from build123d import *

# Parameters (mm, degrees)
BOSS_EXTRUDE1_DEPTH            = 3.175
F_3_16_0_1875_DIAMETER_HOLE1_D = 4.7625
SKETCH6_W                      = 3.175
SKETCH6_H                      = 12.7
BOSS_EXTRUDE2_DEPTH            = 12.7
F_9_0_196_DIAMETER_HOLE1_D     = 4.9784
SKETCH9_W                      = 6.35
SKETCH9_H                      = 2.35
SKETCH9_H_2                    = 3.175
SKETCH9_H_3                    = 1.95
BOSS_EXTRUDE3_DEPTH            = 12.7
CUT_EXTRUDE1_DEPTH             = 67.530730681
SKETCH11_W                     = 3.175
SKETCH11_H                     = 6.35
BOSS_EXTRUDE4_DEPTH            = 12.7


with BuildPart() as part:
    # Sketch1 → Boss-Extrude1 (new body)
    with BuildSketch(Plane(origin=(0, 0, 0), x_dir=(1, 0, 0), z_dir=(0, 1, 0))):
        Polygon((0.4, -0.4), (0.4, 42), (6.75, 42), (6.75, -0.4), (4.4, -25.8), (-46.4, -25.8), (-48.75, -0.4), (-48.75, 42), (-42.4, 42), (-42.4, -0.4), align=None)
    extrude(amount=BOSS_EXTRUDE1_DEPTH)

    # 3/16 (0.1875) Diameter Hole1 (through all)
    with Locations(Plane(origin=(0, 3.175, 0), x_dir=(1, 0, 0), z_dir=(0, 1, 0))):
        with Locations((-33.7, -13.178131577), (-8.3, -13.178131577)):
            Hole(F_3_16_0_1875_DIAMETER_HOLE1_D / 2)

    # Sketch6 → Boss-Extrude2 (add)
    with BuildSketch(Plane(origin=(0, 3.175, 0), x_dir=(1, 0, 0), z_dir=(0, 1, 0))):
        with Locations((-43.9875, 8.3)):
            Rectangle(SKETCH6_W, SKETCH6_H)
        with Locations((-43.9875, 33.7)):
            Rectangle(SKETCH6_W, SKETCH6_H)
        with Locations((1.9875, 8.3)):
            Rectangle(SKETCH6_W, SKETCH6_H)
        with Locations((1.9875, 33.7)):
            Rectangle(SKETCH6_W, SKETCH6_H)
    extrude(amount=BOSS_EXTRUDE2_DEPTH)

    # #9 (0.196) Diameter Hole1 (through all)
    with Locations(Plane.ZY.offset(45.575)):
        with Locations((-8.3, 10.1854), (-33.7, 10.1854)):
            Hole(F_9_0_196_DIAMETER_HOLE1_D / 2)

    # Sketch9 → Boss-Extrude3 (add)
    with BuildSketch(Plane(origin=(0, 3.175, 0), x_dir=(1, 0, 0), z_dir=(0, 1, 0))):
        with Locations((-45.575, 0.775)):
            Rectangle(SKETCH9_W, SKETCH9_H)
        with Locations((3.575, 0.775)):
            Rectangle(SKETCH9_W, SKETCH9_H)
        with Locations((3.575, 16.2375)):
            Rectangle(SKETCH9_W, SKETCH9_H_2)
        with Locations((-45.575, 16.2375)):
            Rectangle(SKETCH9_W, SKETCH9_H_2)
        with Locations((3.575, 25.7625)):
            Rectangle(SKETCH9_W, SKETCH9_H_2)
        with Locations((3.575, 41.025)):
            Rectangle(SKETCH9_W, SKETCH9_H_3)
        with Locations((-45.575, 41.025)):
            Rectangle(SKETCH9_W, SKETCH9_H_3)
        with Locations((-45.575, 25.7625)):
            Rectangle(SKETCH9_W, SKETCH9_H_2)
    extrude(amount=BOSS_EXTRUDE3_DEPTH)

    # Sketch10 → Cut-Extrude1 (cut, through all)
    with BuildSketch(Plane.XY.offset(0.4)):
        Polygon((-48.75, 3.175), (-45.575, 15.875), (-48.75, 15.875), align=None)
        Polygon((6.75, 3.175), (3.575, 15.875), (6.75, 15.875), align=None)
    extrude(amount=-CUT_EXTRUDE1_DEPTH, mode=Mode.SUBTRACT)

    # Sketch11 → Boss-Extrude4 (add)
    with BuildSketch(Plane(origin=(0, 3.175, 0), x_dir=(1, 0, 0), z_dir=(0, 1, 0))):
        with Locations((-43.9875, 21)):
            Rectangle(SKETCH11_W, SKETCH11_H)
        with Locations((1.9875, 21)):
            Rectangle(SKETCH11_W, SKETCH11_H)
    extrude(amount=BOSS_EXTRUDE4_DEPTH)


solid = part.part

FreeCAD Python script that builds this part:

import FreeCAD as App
import Part
import Sketcher
from FreeCAD import Vector
Q = App.Units.Quantity

doc = App.newDocument("Part")
body = doc.addObject("PartDesign::Body", "Body")

sketch1 = body.newObject("Sketcher::SketchObject", "Sketch")
sketch1.AttachmentSupport = (doc.getObject("XZ_Plane"), [""])
sketch1.MapMode = "FlatFace"
sketch1.addGeometry([
    Part.LineSegment(Vector(0, -42, 0), Vector(0, 0, 0)),
    Part.LineSegment(Vector(0, 0, 0), Vector(-42, 0, 0)),
    Part.LineSegment(Vector(-42, 0, 0), Vector(-42, -42, 0)),
    Part.LineSegment(Vector(-42, -42, 0), Vector(-49, -42, 0)),
    Part.LineSegment(Vector(-49, -42, 0), Vector(-49, 0, 0)),
    Part.LineSegment(Vector(-49, 0, 0), Vector(-46, 26, 0)),
    Part.LineSegment(Vector(-46, 26, 0), Vector(4, 26, 0)),
    Part.LineSegment(Vector(4, 26, 0), Vector(7, 0, 0)),
    Part.LineSegment(Vector(7, 0, 0), Vector(7, -42, 0)),
    Part.LineSegment(Vector(7, -42, 0), Vector(0, -42, 0)),
], False)
sketch1.addConstraint([
    Sketcher.Constraint("Coincident", 0, 2, 1, 1),
    Sketcher.Constraint("Coincident", 1, 2, 2, 1),
    Sketcher.Constraint("Coincident", 2, 2, 3, 1),
    Sketcher.Constraint("Coincident", 3, 2, 4, 1),
    Sketcher.Constraint("Coincident", 4, 2, 5, 1),
    Sketcher.Constraint("Coincident", 5, 2, 6, 1),
    Sketcher.Constraint("Coincident", 6, 2, 7, 1),
    Sketcher.Constraint("Coincident", 7, 2, 8, 1),
    Sketcher.Constraint("Coincident", 8, 2, 9, 1),
    Sketcher.Constraint("Coincident", 9, 2, 0, 1),
    Sketcher.Constraint("Vertical", 0),
    Sketcher.Constraint("Horizontal", 1),
    Sketcher.Constraint("Vertical", 2),
    Sketcher.Constraint("Horizontal", 3),
    Sketcher.Constraint("Vertical", 4),
    Sketcher.Constraint("Horizontal", 6),
    Sketcher.Constraint("Vertical", 8),
    Sketcher.Constraint("Horizontal", 9),
    Sketcher.Constraint("Horizontal", 1, 2, 4, 2),
    Sketcher.Constraint("Horizontal", 4, 2, 7, 2),
    Sketcher.Constraint("Horizontal", 3, 2, 8, 2),
    Sketcher.Constraint("Equal", 3, 9),
    Sketcher.Constraint("Equal", 5, 7),
    Sketcher.Constraint("DistanceX", 6, 1, 6, 2, Q("2 in")),
    Sketcher.Constraint("DistanceY", 4, 2, 5, 2, Q("1 in")),
    Sketcher.Constraint("DistanceX", 3, 2, 3, 1, Q("0.25 in")),
    Sketcher.Constraint("DistanceX", 1, 2, 1, 1, Q("42.8 mm")),
    Sketcher.Constraint("DistanceY", 0, 1, 0, 2, Q("42.4 mm")),
    Sketcher.Constraint("DistanceX", -1, 1, 0, 2, Q("0.4 mm")),
    Sketcher.Constraint("DistanceY", -1, 1, 0, 2, Q("0.4 mm")),
])
pad1 = body.newObject("PartDesign::Pad", "Pad")
pad1.Profile = sketch1
pad1.Length = Q("0.125 in")
pad1.Reversed = True

sketch2 = body.newObject("Sketcher::SketchObject", "Sketch001")
sketch2.AttachmentSupport = (doc.getObject("XZ_Plane"), [""])
sketch2.MapMode = "FlatFace"
sketch2.AttachmentOffset = App.Placement(Vector(0, 0, -0.125 * 25.4), App.Rotation())
sketch2.addGeometry([
    Part.Circle(Vector(-33.7, 13.2, 0), Vector(0, 0, 1), 2.4),
    Part.Circle(Vector(-8.3, 13.2, 0), Vector(0, 0, 1), 2.4),
], False)
sketch2.addConstraint([
    Sketcher.Constraint("Equal", 0, 1),
    Sketcher.Constraint("Horizontal", 0, 3, 1, 3),
    Sketcher.Constraint("Diameter", 0, Q("0.1875 in")),
    Sketcher.Constraint("DistanceX", 0, 3, 1, 3, Q("1 in")),
    Sketcher.Constraint("DistanceX", 0, 3, -1, 1, Q("33.7 mm")),
    Sketcher.Constraint("DistanceY", -1, 1, 0, 3, Q("13.178132 mm")),
])
doc.recompute()
hole = body.newObject("PartDesign::Hole", "Hole")
hole.Profile = sketch2
hole.ThreadType = "None"
hole.Diameter = Q("0.1875 in")
hole.DepthType = "ThroughAll"
hole.Reversed = True

sketch3 = body.newObject("Sketcher::SketchObject", "Sketch002")
sketch3.AttachmentSupport = (doc.getObject("XZ_Plane"), [""])
sketch3.MapMode = "FlatFace"
sketch3.AttachmentOffset = App.Placement(Vector(0, 0, -0.125 * 25.4), App.Rotation())
sketch3.addGeometry([
    Part.LineSegment(Vector(-45.6, -14.7, 0), Vector(-45.6, -1.9, 0)),
    Part.LineSegment(Vector(-45.6, -1.9, 0), Vector(-42.4, -1.9, 0)),
    Part.LineSegment(Vector(-42.4, -1.9, 0), Vector(-42.4, -14.7, 0)),
    Part.LineSegment(Vector(-42.4, -14.7, 0), Vector(-45.6, -14.7, 0)),
    Part.LineSegment(Vector(-45.6, -40, 0), Vector(-45.6, -27.4, 0)),
    Part.LineSegment(Vector(-45.6, -27.4, 0), Vector(-42.4, -27.4, 0)),
    Part.LineSegment(Vector(-42.4, -27.4, 0), Vector(-42.4, -40, 0)),
    Part.LineSegment(Vector(-42.4, -40, 0), Vector(-45.6, -40, 0)),
    Part.LineSegment(Vector(0.4, -14.7, 0), Vector(0.4, -1.9, 0)),
    Part.LineSegment(Vector(0.4, -1.9, 0), Vector(3.6, -1.9, 0)),
    Part.LineSegment(Vector(3.6, -1.9, 0), Vector(3.6, -14.7, 0)),
    Part.LineSegment(Vector(3.6, -14.7, 0), Vector(0.4, -14.7, 0)),
    Part.LineSegment(Vector(0.4, -40, 0), Vector(0.4, -27.4, 0)),
    Part.LineSegment(Vector(0.4, -27.4, 0), Vector(3.6, -27.4, 0)),
    Part.LineSegment(Vector(3.6, -27.4, 0), Vector(3.6, -40, 0)),
    Part.LineSegment(Vector(3.6, -40, 0), Vector(0.4, -40, 0)),
], False)
sketch3.addConstraint([
    Sketcher.Constraint("Coincident", 0, 2, 1, 1),
    Sketcher.Constraint("Coincident", 1, 2, 2, 1),
    Sketcher.Constraint("Coincident", 2, 2, 3, 1),
    Sketcher.Constraint("Coincident", 3, 2, 0, 1),
    Sketcher.Constraint("Coincident", 4, 2, 5, 1),
    Sketcher.Constraint("Coincident", 5, 2, 6, 1),
    Sketcher.Constraint("Coincident", 6, 2, 7, 1),
    Sketcher.Constraint("Coincident", 7, 2, 4, 1),
    Sketcher.Constraint("Coincident", 8, 2, 9, 1),
    Sketcher.Constraint("Coincident", 9, 2, 10, 1),
    Sketcher.Constraint("Coincident", 10, 2, 11, 1),
    Sketcher.Constraint("Coincident", 11, 2, 8, 1),
    Sketcher.Constraint("Coincident", 12, 2, 13, 1),
    Sketcher.Constraint("Coincident", 13, 2, 14, 1),
    Sketcher.Constraint("Coincident", 14, 2, 15, 1),
    Sketcher.Constraint("Coincident", 15, 2, 12, 1),
    Sketcher.Constraint("Vertical", 0),
    Sketcher.Constraint("Horizontal", 1),
    Sketcher.Constraint("Vertical", 2),
    Sketcher.Constraint("Horizontal", 3),
    Sketcher.Constraint("Vertical", 4),
    Sketcher.Constraint("Horizontal", 5),
    Sketcher.Constraint("Vertical", 6),
    Sketcher.Constraint("Horizontal", 7),
    Sketcher.Constraint("Vertical", 8),
    Sketcher.Constraint("Horizontal", 9),
    Sketcher.Constraint("Vertical", 10),
    Sketcher.Constraint("Horizontal", 11),
    Sketcher.Constraint("Vertical", 12),
    Sketcher.Constraint("Horizontal", 13),
    Sketcher.Constraint("Vertical", 14),
    Sketcher.Constraint("Horizontal", 15),
    Sketcher.Constraint("Horizontal", 1, 2, 8, 2),
    Sketcher.Constraint("Horizontal", 3, 2, 10, 2),
    Sketcher.Constraint("Horizontal", 5, 2, 12, 2),
    Sketcher.Constraint("Horizontal", 7, 2, 14, 2),
    Sketcher.Constraint("Vertical", 3, 2, 4, 2),
    Sketcher.Constraint("Vertical", 2, 2, 5, 2),
    Sketcher.Constraint("Vertical", 11, 2, 12, 2),
    Sketcher.Constraint("Vertical", 10, 2, 13, 2),
    Sketcher.Constraint("Equal", 7, 9),
    Sketcher.Constraint("Equal", 2, 4),
    Sketcher.Constraint("DistanceY", 0, 1, 0, 2, Q("0.5 in")),
    Sketcher.Constraint("DistanceY", 4, 2, 0, 2, Q("1 in")),
    Sketcher.Constraint("DistanceX", 1, 1, 1, 2, Q("0.125 in")),
    Sketcher.Constraint("DistanceX", 0, 2, -1, 1, Q("45.575 mm")),
    Sketcher.Constraint("DistanceY", 0, 2, -1, 1, Q("1.95 mm")),
    Sketcher.Constraint("DistanceX", -1, 1, 8, 2, Q("0.4 mm")),
])
pad2 = body.newObject("PartDesign::Pad", "Pad001")
pad2.Profile = sketch3
pad2.Length = Q("0.5 in")
pad2.Reversed = True

sketch4 = body.newObject("Sketcher::SketchObject", "Sketch003")
sketch4.AttachmentSupport = (doc.getObject("YZ_Plane"), [""])
sketch4.MapMode = "FlatFace"
sketch4.AttachmentOffset = App.Placement(Vector(0, 0, -45.575), App.Rotation())
sketch4.addGeometry([
    Part.Circle(Vector(10.2, -8.3, 0), Vector(0, 0, 1), 2.5),
    Part.Circle(Vector(10.2, -33.7, 0), Vector(0, 0, 1), 2.5),
], False)
sketch4.addConstraint([
    Sketcher.Constraint("Equal", 0, 1),
    Sketcher.Constraint("Vertical", 0, 3, 1, 3),
    Sketcher.Constraint("Diameter", 0, Q("0.196 in")),
    Sketcher.Constraint("DistanceY", 1, 3, 0, 3, Q("1 in")),
    Sketcher.Constraint("DistanceX", -1, 1, 0, 3, Q("0.401 in")),
    Sketcher.Constraint("DistanceY", 0, 3, -1, 1, Q("8.3 mm")),
])
doc.recompute()
hole2 = body.newObject("PartDesign::Hole", "Hole001")
hole2.Profile = sketch4
hole2.ThreadType = "None"
hole2.Diameter = Q("0.196 in")
hole2.DepthType = "ThroughAll"
hole2.Reversed = True

sketch5 = body.newObject("Sketcher::SketchObject", "Sketch004")
sketch5.AttachmentSupport = (doc.getObject("XZ_Plane"), [""])
sketch5.MapMode = "FlatFace"
sketch5.AttachmentOffset = App.Placement(Vector(0, 0, -0.125 * 25.4), App.Rotation())
sketch5.addGeometry([
    Part.LineSegment(Vector(-48.8, -1.9, 0), Vector(-48.8, 0.4, 0)),
    Part.LineSegment(Vector(-48.8, 0.4, 0), Vector(-42.4, 0.4, 0)),
    Part.LineSegment(Vector(-42.4, 0.4, 0), Vector(-42.4, -1.9, 0)),
    Part.LineSegment(Vector(-42.4, -1.9, 0), Vector(-48.8, -1.9, 0)),
    Part.LineSegment(Vector(0.4, -1.9, 0), Vector(0.4, 0.4, 0)),
    Part.LineSegment(Vector(0.4, 0.4, 0), Vector(6.8, 0.4, 0)),
    Part.LineSegment(Vector(6.8, 0.4, 0), Vector(6.8, -1.9, 0)),
    Part.LineSegment(Vector(6.8, -1.9, 0), Vector(0.4, -1.9, 0)),
    Part.LineSegment(Vector(0.4, -17.8, 0), Vector(0.4, -14.7, 0)),
    Part.LineSegment(Vector(0.4, -14.7, 0), Vector(6.8, -14.7, 0)),
    Part.LineSegment(Vector(6.8, -14.7, 0), Vector(6.8, -17.8, 0)),
    Part.LineSegment(Vector(6.8, -17.8, 0), Vector(0.4, -17.8, 0)),
    Part.LineSegment(Vector(-48.8, -17.8, 0), Vector(-48.8, -14.7, 0)),
    Part.LineSegment(Vector(-48.8, -14.7, 0), Vector(-42.4, -14.7, 0)),
    Part.LineSegment(Vector(-42.4, -14.7, 0), Vector(-42.4, -17.8, 0)),
    Part.LineSegment(Vector(-42.4, -17.8, 0), Vector(-48.8, -17.8, 0)),
    Part.LineSegment(Vector(0.4, -27.4, 0), Vector(0.4, -24.2, 0)),
    Part.LineSegment(Vector(0.4, -24.2, 0), Vector(6.8, -24.2, 0)),
    Part.LineSegment(Vector(6.8, -24.2, 0), Vector(6.8, -27.4, 0)),
    Part.LineSegment(Vector(6.8, -27.4, 0), Vector(0.4, -27.4, 0)),
    Part.LineSegment(Vector(0.4, -42, 0), Vector(0.4, -40, 0)),
    Part.LineSegment(Vector(0.4, -40, 0), Vector(6.8, -40, 0)),
    Part.LineSegment(Vector(6.8, -40, 0), Vector(6.8, -42, 0)),
    Part.LineSegment(Vector(6.8, -42, 0), Vector(0.4, -42, 0)),
    Part.LineSegment(Vector(-48.8, -42, 0), Vector(-48.8, -40, 0)),
    Part.LineSegment(Vector(-48.8, -40, 0), Vector(-42.4, -40, 0)),
    Part.LineSegment(Vector(-42.4, -40, 0), Vector(-42.4, -42, 0)),
    Part.LineSegment(Vector(-42.4, -42, 0), Vector(-48.8, -42, 0)),
    Part.LineSegment(Vector(-48.8, -27.4, 0), Vector(-48.8, -24.2, 0)),
    Part.LineSegment(Vector(-48.8, -24.2, 0), Vector(-42.4, -24.2, 0)),
    Part.LineSegment(Vector(-42.4, -24.2, 0), Vector(-42.4, -27.4, 0)),
    Part.LineSegment(Vector(-42.4, -27.4, 0), Vector(-48.8, -27.4, 0)),
], False)
sketch5.addConstraint([
    Sketcher.Constraint("Coincident", 0, 2, 1, 1),
    Sketcher.Constraint("Coincident", 1, 2, 2, 1),
    Sketcher.Constraint("Coincident", 2, 2, 3, 1),
    Sketcher.Constraint("Coincident", 3, 2, 0, 1),
    Sketcher.Constraint("Coincident", 4, 2, 5, 1),
    Sketcher.Constraint("Coincident", 5, 2, 6, 1),
    Sketcher.Constraint("Coincident", 6, 2, 7, 1),
    Sketcher.Constraint("Coincident", 7, 2, 4, 1),
    Sketcher.Constraint("Coincident", 8, 2, 9, 1),
    Sketcher.Constraint("Coincident", 9, 2, 10, 1),
    Sketcher.Constraint("Coincident", 10, 2, 11, 1),
    Sketcher.Constraint("Coincident", 11, 2, 8, 1),
    Sketcher.Constraint("Coincident", 12, 2, 13, 1),
    Sketcher.Constraint("Coincident", 13, 2, 14, 1),
    Sketcher.Constraint("Coincident", 14, 2, 15, 1),
    Sketcher.Constraint("Coincident", 15, 2, 12, 1),
    Sketcher.Constraint("Coincident", 16, 2, 17, 1),
    Sketcher.Constraint("Coincident", 17, 2, 18, 1),
    Sketcher.Constraint("Coincident", 18, 2, 19, 1),
    Sketcher.Constraint("Coincident", 19, 2, 16, 1),
    Sketcher.Constraint("Coincident", 20, 2, 21, 1),
    Sketcher.Constraint("Coincident", 21, 2, 22, 1),
    Sketcher.Constraint("Coincident", 22, 2, 23, 1),
    Sketcher.Constraint("Coincident", 23, 2, 20, 1),
    Sketcher.Constraint("Coincident", 24, 2, 25, 1),
    Sketcher.Constraint("Coincident", 25, 2, 26, 1),
    Sketcher.Constraint("Coincident", 26, 2, 27, 1),
    Sketcher.Constraint("Coincident", 27, 2, 24, 1),
    Sketcher.Constraint("Coincident", 28, 2, 29, 1),
    Sketcher.Constraint("Coincident", 29, 2, 30, 1),
    Sketcher.Constraint("Coincident", 30, 2, 31, 1),
    Sketcher.Constraint("Coincident", 31, 2, 28, 1),
    Sketcher.Constraint("Vertical", 0),
    Sketcher.Constraint("Horizontal", 1),
    Sketcher.Constraint("Vertical", 2),
    Sketcher.Constraint("Horizontal", 3),
    Sketcher.Constraint("Vertical", 4),
    Sketcher.Constraint("Horizontal", 5),
    Sketcher.Constraint("Vertical", 6),
    Sketcher.Constraint("Horizontal", 7),
    Sketcher.Constraint("Vertical", 8),
    Sketcher.Constraint("Horizontal", 9),
    Sketcher.Constraint("Vertical", 10),
    Sketcher.Constraint("Horizontal", 11),
    Sketcher.Constraint("Vertical", 12),
    Sketcher.Constraint("Horizontal", 13),
    Sketcher.Constraint("Vertical", 14),
    Sketcher.Constraint("Horizontal", 15),
    Sketcher.Constraint("Vertical", 16),
    Sketcher.Constraint("Horizontal", 17),
    Sketcher.Constraint("Vertical", 18),
    Sketcher.Constraint("Horizontal", 19),
    Sketcher.Constraint("Vertical", 20),
    Sketcher.Constraint("Horizontal", 21),
    Sketcher.Constraint("Vertical", 22),
    Sketcher.Constraint("Horizontal", 23),
    Sketcher.Constraint("Vertical", 24),
    Sketcher.Constraint("Horizontal", 25),
    Sketcher.Constraint("Vertical", 26),
    Sketcher.Constraint("Horizontal", 27),
    Sketcher.Constraint("Vertical", 28),
    Sketcher.Constraint("Horizontal", 29),
    Sketcher.Constraint("Vertical", 30),
    Sketcher.Constraint("Horizontal", 31),
    Sketcher.Constraint("Horizontal", 1, 2, 4, 2),
    Sketcher.Constraint("Horizontal", 3, 2, 6, 2),
    Sketcher.Constraint("Horizontal", 9, 2, 12, 2),
    Sketcher.Constraint("Horizontal", 11, 2, 14, 2),
    Sketcher.Constraint("Horizontal", 21, 2, 24, 2),
    Sketcher.Constraint("Horizontal", 23, 2, 26, 2),
    Sketcher.Constraint("Horizontal", 17, 2, 28, 2),
    Sketcher.Constraint("Horizontal", 19, 2, 30, 2),
    Sketcher.Constraint("Vertical", 7, 2, 8, 2),
    Sketcher.Constraint("Vertical", 6, 2, 9, 2),
    Sketcher.Constraint("Vertical", 3, 2, 12, 2),
    Sketcher.Constraint("Vertical", 2, 2, 13, 2),
    Sketcher.Constraint("Vertical", 11, 2, 16, 2),
    Sketcher.Constraint("Vertical", 10, 2, 17, 2),
    Sketcher.Constraint("Vertical", 19, 2, 20, 2),
    Sketcher.Constraint("Vertical", 18, 2, 21, 2),
    Sketcher.Constraint("Vertical", 15, 2, 24, 2),
    Sketcher.Constraint("Vertical", 14, 2, 25, 2),
    Sketcher.Constraint("Vertical", 27, 2, 28, 2),
    Sketcher.Constraint("Vertical", 26, 2, 29, 2),
    Sketcher.Constraint("Equal", 3, 5),
    Sketcher.Constraint("Equal", 14, 16),
    Sketcher.Constraint("DistanceY", 24, 2, 12, 2, Q("1 in")),
    Sketcher.Constraint("DistanceX", 1, 1, 1, 2, Q("0.25 in")),
    Sketcher.Constraint("DistanceY", 8, 2, 7, 2, Q("0.5 in")),
    Sketcher.Constraint("DistanceY", 18, 2, 9, 2, Q("0.5 in")),
    Sketcher.Constraint("DistanceY", 8, 1, 8, 2, Q("0.125 in")),
    Sketcher.Constraint("DistanceY", 0, 1, 0, 2, Q("2.35 mm")),
    Sketcher.Constraint("DistanceY", 20, 1, 20, 2, Q("1.95 mm")),
    Sketcher.Constraint("DistanceX", 0, 2, -1, 1, Q("48.75 mm")),
    Sketcher.Constraint("DistanceY", -1, 1, 0, 2, Q("0.4 mm")),
    Sketcher.Constraint("DistanceX", -1, 1, 4, 2, Q("0.4 mm")),
])
pad3 = body.newObject("PartDesign::Pad", "Pad002")
pad3.Profile = sketch5
pad3.Length = Q("0.5 in")
pad3.Reversed = True

sketch6 = body.newObject("Sketcher::SketchObject", "Sketch005")
sketch6.AttachmentSupport = (doc.getObject("XY_Plane"), [""])
sketch6.MapMode = "FlatFace"
sketch6.AttachmentOffset = App.Placement(Vector(0, 0, 0.4), App.Rotation())
sketch6.addGeometry([
    Part.LineSegment(Vector(-48.8, 3.2, 0), Vector(-45.6, 15.9, 0)),
    Part.LineSegment(Vector(-45.6, 15.9, 0), Vector(-48.8, 15.9, 0)),
    Part.LineSegment(Vector(-48.8, 15.9, 0), Vector(-48.8, 3.2, 0)),
    Part.LineSegment(Vector(3.6, 15.9, 0), Vector(6.8, 3.2, 0)),
    Part.LineSegment(Vector(6.8, 3.2, 0), Vector(6.8, 15.9, 0)),
    Part.LineSegment(Vector(6.8, 15.9, 0), Vector(3.6, 15.9, 0)),
], False)
sketch6.addConstraint([
    Sketcher.Constraint("Coincident", 0, 2, 1, 1),
    Sketcher.Constraint("Coincident", 1, 2, 2, 1),
    Sketcher.Constraint("Coincident", 2, 2, 0, 1),
    Sketcher.Constraint("Coincident", 3, 2, 4, 1),
    Sketcher.Constraint("Coincident", 4, 2, 5, 1),
    Sketcher.Constraint("Coincident", 5, 2, 3, 1),
    Sketcher.Constraint("Horizontal", 1),
    Sketcher.Constraint("Vertical", 2),
    Sketcher.Constraint("Vertical", 4),
    Sketcher.Constraint("Horizontal", 5),
    Sketcher.Constraint("Horizontal", 2, 2, 3, 2),
    Sketcher.Constraint("Horizontal", 1, 2, 4, 2),
    Sketcher.Constraint("Equal", 1, 5),
    Sketcher.Constraint("DistanceY", 2, 2, 2, 1, Q("0.5 in")),
    Sketcher.Constraint("DistanceX", 1, 2, 1, 1, Q("0.125 in")),
    Sketcher.Constraint("DistanceY", -1, 1, 0, 2, Q("0.625 in")),
    Sketcher.Constraint("DistanceX", 0, 2, -1, 1, Q("45.575 mm")),
    Sketcher.Constraint("DistanceX", -1, 1, 3, 2, Q("6.75 mm")),
])
pocket1 = body.newObject("PartDesign::Pocket", "Pocket")
pocket1.Profile = sketch6
pocket1.Type = "ThroughAll"

sketch7 = body.newObject("Sketcher::SketchObject", "Sketch006")
sketch7.AttachmentSupport = (doc.getObject("XZ_Plane"), [""])
sketch7.MapMode = "FlatFace"
sketch7.AttachmentOffset = App.Placement(Vector(0, 0, -0.125 * 25.4), App.Rotation())
sketch7.addGeometry([
    Part.LineSegment(Vector(-45.6, -24.2, 0), Vector(-45.6, -17.8, 0)),
    Part.LineSegment(Vector(-45.6, -17.8, 0), Vector(-42.4, -17.8, 0)),
    Part.LineSegment(Vector(-42.4, -17.8, 0), Vector(-42.4, -24.2, 0)),
    Part.LineSegment(Vector(-42.4, -24.2, 0), Vector(-45.6, -24.2, 0)),
    Part.LineSegment(Vector(0.4, -24.2, 0), Vector(0.4, -17.8, 0)),
    Part.LineSegment(Vector(0.4, -17.8, 0), Vector(3.6, -17.8, 0)),
    Part.LineSegment(Vector(3.6, -17.8, 0), Vector(3.6, -24.2, 0)),
    Part.LineSegment(Vector(3.6, -24.2, 0), Vector(0.4, -24.2, 0)),
], False)
sketch7.addConstraint([
    Sketcher.Constraint("Coincident", 0, 2, 1, 1),
    Sketcher.Constraint("Coincident", 1, 2, 2, 1),
    Sketcher.Constraint("Coincident", 2, 2, 3, 1),
    Sketcher.Constraint("Coincident", 3, 2, 0, 1),
    Sketcher.Constraint("Coincident", 4, 2, 5, 1),
    Sketcher.Constraint("Coincident", 5, 2, 6, 1),
    Sketcher.Constraint("Coincident", 6, 2, 7, 1),
    Sketcher.Constraint("Coincident", 7, 2, 4, 1),
    Sketcher.Constraint("Vertical", 0),
    Sketcher.Constraint("Horizontal", 1),
    Sketcher.Constraint("Vertical", 2),
    Sketcher.Constraint("Horizontal", 3),
    Sketcher.Constraint("Vertical", 4),
    Sketcher.Constraint("Horizontal", 5),
    Sketcher.Constraint("Vertical", 6),
    Sketcher.Constraint("Horizontal", 7),
    Sketcher.Constraint("Horizontal", 1, 2, 4, 2),
    Sketcher.Constraint("Horizontal", 3, 2, 6, 2),
    Sketcher.Constraint("Equal", 3, 5),
    Sketcher.Constraint("DistanceY", 0, 1, 0, 2, Q("0.25 in")),
    Sketcher.Constraint("DistanceX", 1, 1, 1, 2, Q("0.125 in")),
    Sketcher.Constraint("DistanceX", 0, 2, -1, 1, Q("45.575 mm")),
    Sketcher.Constraint("DistanceY", 0, 2, -1, 1, Q("17.825 mm")),
    Sketcher.Constraint("DistanceX", -1, 1, 4, 2, Q("0.4 mm")),
])
pad4 = body.newObject("PartDesign::Pad", "Pad003")
pad4.Profile = sketch7
pad4.Length = Q("0.5 in")
pad4.Reversed = True

doc.recompute()
